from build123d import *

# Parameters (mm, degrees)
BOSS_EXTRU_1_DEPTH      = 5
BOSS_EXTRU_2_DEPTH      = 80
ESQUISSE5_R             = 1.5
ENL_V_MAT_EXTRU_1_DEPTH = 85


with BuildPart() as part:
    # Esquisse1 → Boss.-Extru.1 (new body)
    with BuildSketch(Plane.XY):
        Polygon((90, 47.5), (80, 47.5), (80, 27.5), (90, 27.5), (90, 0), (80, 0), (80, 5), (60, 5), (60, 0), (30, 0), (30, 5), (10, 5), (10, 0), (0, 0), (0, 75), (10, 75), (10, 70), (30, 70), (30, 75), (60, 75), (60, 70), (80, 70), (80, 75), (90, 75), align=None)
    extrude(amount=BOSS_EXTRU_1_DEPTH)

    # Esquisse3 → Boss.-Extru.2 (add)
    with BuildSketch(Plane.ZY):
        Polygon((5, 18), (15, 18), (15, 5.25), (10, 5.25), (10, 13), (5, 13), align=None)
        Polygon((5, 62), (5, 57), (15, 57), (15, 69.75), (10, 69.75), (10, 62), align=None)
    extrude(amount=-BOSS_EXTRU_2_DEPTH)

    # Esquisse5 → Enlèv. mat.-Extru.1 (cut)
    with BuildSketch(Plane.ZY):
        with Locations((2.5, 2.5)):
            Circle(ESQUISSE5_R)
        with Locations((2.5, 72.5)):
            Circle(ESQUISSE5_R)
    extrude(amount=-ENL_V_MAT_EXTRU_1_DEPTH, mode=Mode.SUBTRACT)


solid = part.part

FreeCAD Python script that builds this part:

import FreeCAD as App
import Part
import Sketcher

V = App.Vector

doc = App.newDocument("Part")
body = doc.addObject("PartDesign::Body", "Body")

sketch1 = body.newObject("Sketcher::SketchObject", "Sketch")
sketch1.AttachmentSupport = (doc.getObject("XY_Plane"), [""])
sketch1.MapMode = "FlatFace"
sketch1.addGeometry(Part.LineSegment(V(80, 48, 0), V(90, 48, 0)), False)
sketch1.addGeometry(Part.LineSegment(V(90, 48, 0), V(90, 75, 0)), False)
sketch1.addGeometry(Part.LineSegment(V(90, 75, 0), V(80, 75, 0)), False)
sketch1.addGeometry(Part.LineSegment(V(80, 75, 0), V(80, 70, 0)), False)
sketch1.addGeometry(Part.LineSegment(V(80, 70, 0), V(60, 70, 0)), False)
sketch1.addGeometry(Part.LineSegment(V(60, 70, 0), V(60, 75, 0)), False)
sketch1.addGeometry(Part.LineSegment(V(60, 75, 0), V(30, 75, 0)), False)
sketch1.addGeometry(Part.LineSegment(V(30, 75, 0), V(30, 70, 0)), False)
sketch1.addGeometry(Part.LineSegment(V(30, 70, 0), V(10, 70, 0)), False)
sketch1.addGeometry(Part.LineSegment(V(10, 70, 0), V(10, 75, 0)), False)
sketch1.addGeometry(Part.LineSegment(V(10, 75, 0), V(0, 75, 0)), False)
sketch1.addGeometry(Part.LineSegment(V(0, 75, 0), V(0, 0, 0)), False)
sketch1.addGeometry(Part.LineSegment(V(0, 0, 0), V(10, 0, 0)), False)
sketch1.addGeometry(Part.LineSegment(V(10, 0, 0), V(10, 5, 0)), False)
sketch1.addGeometry(Part.LineSegment(V(10, 5, 0), V(30, 5, 0)), False)
sketch1.addGeometry(Part.LineSegment(V(30, 5, 0), V(30, 0, 0)), False)
sketch1.addGeometry(Part.LineSegment(V(30, 0, 0), V(60, 0, 0)), False)
sketch1.addGeometry(Part.LineSegment(V(60, 0, 0), V(60, 5, 0)), False)
sketch1.addGeometry(Part.LineSegment(V(60, 5, 0), V(80, 5, 0)), False)
sketch1.addGeometry(Part.LineSegment(V(80, 5, 0), V(80, 0, 0)), False)
sketch1.addGeometry(Part.LineSegment(V(80, 0, 0), V(90, 0, 0)), False)
sketch1.addGeometry(Part.LineSegment(V(90, 0, 0), V(90, 28, 0)), False)
sketch1.addGeometry(Part.LineSegment(V(90, 28, 0), V(80, 28, 0)), False)
sketch1.addGeometry(Part.LineSegment(V(80, 28, 0), V(80, 48, 0)), False)
sketch1.addConstraint(Sketcher.Constraint("Coincident", 0, 2, 1, 1))
sketch1.addConstraint(Sketcher.Constraint("Coincident", 1, 2, 2, 1))
sketch1.addConstraint(Sketcher.Constraint("Coincident", 2, 2, 3, 1))
sketch1.addConstraint(Sketcher.Constraint("Coincident", 3, 2, 4, 1))
sketch1.addConstraint(Sketcher.Constraint("Coincident", 4, 2, 5, 1))
sketch1.addConstraint(Sketcher.Constraint("Coincident", 5, 2, 6, 1))
sketch1.addConstraint(Sketcher.Constraint("Coincident", 6, 2, 7, 1))
sketch1.addConstraint(Sketcher.Constraint("Coincident", 7, 2, 8, 1))
sketch1.addConstraint(Sketcher.Constraint("Coincident", 8, 2, 9, 1))
sketch1.addConstraint(Sketcher.Constraint("Coincident", 9, 2, 10, 1))
sketch1.addConstraint(Sketcher.Constraint("Coincident", 10, 2, 11, 1))
sketch1.addConstraint(Sketcher.Constraint("Coincident", 11, 2, 12, 1))
sketch1.addConstraint(Sketcher.Constraint("Coincident", 12, 2, 13, 1))
sketch1.addConstraint(Sketcher.Constraint("Coincident", 13, 2, 14, 1))
sketch1.addConstraint(Sketcher.Constraint("Coincident", 14, 2, 15, 1))
sketch1.addConstraint(Sketcher.Constraint("Coincident", 15, 2, 16, 1))
sketch1.addConstraint(Sketcher.Constraint("Coincident", 16, 2, 17, 1))
sketch1.addConstraint(Sketcher.Constraint("Coincident", 17, 2, 18, 1))
sketch1.addConstraint(Sketcher.Constraint("Coincident", 18, 2, 19, 1))
sketch1.addConstraint(Sketcher.Constraint("Coincident", 19, 2, 20, 1))
sketch1.addConstraint(Sketcher.Constraint("Coincident", 20, 2, 21, 1))
sketch1.addConstraint(Sketcher.Constraint("Coincident", 21, 2, 22, 1))
sketch1.addConstraint(Sketcher.Constraint("Coincident", 22, 2, 23, 1))
sketch1.addConstraint(Sketcher.Constraint("Coincident", 23, 2, 0, 1))
sketch1.addConstraint(Sketcher.Constraint("Horizontal", 0))
sketch1.addConstraint(Sketcher.Constraint("Vertical", 1))
sketch1.addConstraint(Sketcher.Constraint("Horizontal", 2))
sketch1.addConstraint(Sketcher.Constraint("Vertical", 3))
sketch1.addConstraint(Sketcher.Constraint("Horizontal", 4))
sketch1.addConstraint(Sketcher.Constraint("Vertical", 5))
sketch1.addConstraint(Sketcher.Constraint("Horizontal", 6))
sketch1.addConstraint(Sketcher.Constraint("Vertical", 7))
sketch1.addConstraint(Sketcher.Constraint("Horizontal", 8))
sketch1.addConstraint(Sketcher.Constraint("Vertical", 9))
sketch1.addConstraint(Sketcher.Constraint("Horizontal", 10))
sketch1.addConstraint(Sketcher.Constraint("Vertical", 11))
sketch1.addConstraint(Sketcher.Constraint("Horizontal", 12))
sketch1.addConstraint(Sketcher.Constraint("Vertical", 13))
sketch1.addConstraint(Sketcher.Constraint("Horizontal", 14))
sketch1.addConstraint(Sketcher.Constraint("Vertical", 15))
sketch1.addConstraint(Sketcher.Constraint("Horizontal", 16))
sketch1.addConstraint(Sketcher.Constraint("Vertical", 17))
sketch1.addConstraint(Sketcher.Constraint("Horizontal", 18))
sketch1.addConstraint(Sketcher.Constraint("Vertical", 19))
sketch1.addConstraint(Sketcher.Constraint("Horizontal", 20))
sketch1.addConstraint(Sketcher.Constraint("Vertical", 21))
sketch1.addConstraint(Sketcher.Constraint("Horizontal", 22))
sketch1.addConstraint(Sketcher.Constraint("Vertical", 23))
sketch1.addConstraint(Sketcher.Constraint("Coincident", 11, 2, -1, 1))
sketch1.addConstraint(Sketcher.Constraint("PointOnObject", 15, 2, -1))
sketch1.addConstraint(Sketcher.Constraint("PointOnObject", 19, 2, -1))
sketch1.addConstraint(Sketcher.Constraint("Horizontal", 2, 2, 5, 2))
sketch1.addConstraint(Sketcher.Constraint("Horizontal", 4, 2, 7, 2))
sketch1.addConstraint(Sketcher.Constraint("Horizontal", 6, 2, 9, 2))
sketch1.addConstraint(Sketcher.Constraint("Horizontal", 14, 2, 17, 2))
sketch1.addConstraint(Sketcher.Constraint("Vertical", 9, 2, 12, 2))
sketch1.addConstraint(Sketcher.Constraint("Vertical", 7, 2, 14, 2))
sketch1.addConstraint(Sketcher.Constraint("Vertical", 5, 2, 16, 2))
sketch1.addConstraint(Sketcher.Constraint("Vertical", 3, 2, 18, 2))
sketch1.addConstraint(Sketcher.Constraint("Vertical", 1, 2, 20, 2))
sketch1.addConstraint(Sketcher.Constraint("Vertical", 19, 2, 22, 2))
sketch1.addConstraint(Sketcher.Constraint("Equal", 4, 8))
sketch1.addConstraint(Sketcher.Constraint("Equal", 2, 10))
sketch1.addConstraint(Sketcher.Constraint("Equal", 9, 13))
sketch1.addConstraint(Sketcher.Constraint("Equal", 1, 21))
sketch1.addConstraint(Sketcher.Constraint("Equal", 18, 23))
sketch1.addConstraint(Sketcher.Constraint("DistanceX", 0, 1, 0, 2, 10.0))
sketch1.addConstraint(Sketcher.Constraint("DistanceX", 4, 2, 4, 1, 20.0))
sketch1.addConstraint(Sketcher.Constraint("DistanceX", 6, 2, 6, 1, 30.0))
sketch1.addConstraint(Sketcher.Constraint("DistanceY", 3, 2, 3, 1, 5.0))
sketch1.addConstraint(Sketcher.Constraint("DistanceY", 11, 2, 11, 1, 75.0))
pad1 = body.newObject("PartDesign::Pad", "Pad")
pad1.Profile = sketch1
pad1.Length = 5

sketch2 = body.newObject("Sketcher::SketchObject", "Sketch001")
sketch2.AttachmentSupport = (doc.getObject("YZ_Plane"), [""])
sketch2.MapMode = "FlatFace"
sketch2.addGeometry(Part.LineSegment(V(18, 15, 0), V(18, 5, 0)), False)
sketch2.addGeometry(Part.LineSegment(V(18, 5, 0), V(13, 5, 0)), False)
sketch2.addGeometry(Part.LineSegment(V(13, 5, 0), V(13, 10, 0)), False)
sketch2.addGeometry(Part.LineSegment(V(13, 10, 0), V(5, 10, 0)), False)
sketch2.addGeometry(Part.LineSegment(V(5, 10, 0), V(5, 15, 0)), False)
sketch2.addGeometry(Part.LineSegment(V(5, 15, 0), V(18, 15, 0)), False)
sketch2.addGeometry(Part.LineSegment(V(62, 5, 0), V(57, 5, 0)), False)
sketch2.addGeometry(Part.LineSegment(V(57, 5, 0), V(57, 15, 0)), False)
sketch2.addGeometry(Part.LineSegment(V(57, 15, 0), V(70, 15, 0)), False)
sketch2.addGeometry(Part.LineSegment(V(70, 15, 0), V(70, 10, 0)), False)
sketch2.addGeometry(Part.LineSegment(V(70, 10, 0), V(62, 10, 0)), False)
sketch2.addGeometry(Part.LineSegment(V(62, 10, 0), V(62, 5, 0)), False)
sketch2.addConstraint(Sketcher.Constraint("Coincident", 0, 2, 1, 1))
sketch2.addConstraint(Sketcher.Constraint("Coincident", 1, 2, 2, 1))
sketch2.addConstraint(Sketcher.Constraint("Coincident", 2, 2, 3, 1))
sketch2.addConstraint(Sketcher.Constraint("Coincident", 3, 2, 4, 1))
sketch2.addConstraint(Sketcher.Constraint("Coincident", 4, 2, 5, 1))
sketch2.addConstraint(Sketcher.Constraint("Coincident", 5, 2, 0, 1))
sketch2.addConstraint(Sketcher.Constraint("Coincident", 6, 2, 7, 1))
sketch2.addConstraint(Sketcher.Constraint("Coincident", 7, 2, 8, 1))
sketch2.addConstraint(Sketcher.Constraint("Coincident", 8, 2, 9, 1))
sketch2.addConstraint(Sketcher.Constraint("Coincident", 9, 2, 10, 1))
sketch2.addConstraint(Sketcher.Constraint("Coincident", 10, 2, 11, 1))
sketch2.addConstraint(Sketcher.Constraint("Coincident", 11, 2, 6, 1))
sketch2.addConstraint(Sketcher.Constraint("Vertical", 0))
sketch2.addConstraint(Sketcher.Constraint("Horizontal", 1))
sketch2.addConstraint(Sketcher.Constraint("Vertical", 2))
sketch2.addConstraint(Sketcher.Constraint("Horizontal", 3))
sketch2.addConstraint(Sketcher.Constraint("Vertical", 4))
sketch2.addConstraint(Sketcher.Constraint("Horizontal", 5))
sketch2.addConstraint(Sketcher.Constraint("Horizontal", 6))
sketch2.addConstraint(Sketcher.Constraint("Vertical", 7))
sketch2.addConstraint(Sketcher.Constraint("Horizontal", 8))
sketch2.addConstraint(Sketcher.Constraint("Vertical", 9))
sketch2.addConstraint(Sketcher.Constraint("Horizontal", 10))
sketch2.addConstraint(Sketcher.Constraint("Vertical", 11))
sketch2.addConstraint(Sketcher.Constraint("Horizontal", 1, 2, 6, 2))
sketch2.addConstraint(Sketcher.Constraint("Horizontal", 5, 2, 7, 2))
sketch2.addConstraint(Sketcher.Constraint("Horizontal", 3, 2, 9, 2))
sketch2.addConstraint(Sketcher.Constraint("Equal", 1, 6))
sketch2.addConstraint(Sketcher.Constraint("Equal", 5, 8))
sketch2.addConstraint(Sketcher.Constraint("Equal", 6, 2))
sketch2.addConstraint(Sketcher.Constraint("Equal", 2, 4))
sketch2.addConstraint(Sketcher.Constraint("DistanceX", 1, 2, 1, 1, 5.0))
sketch2.addConstraint(Sketcher.Constraint("DistanceX", -1, 1, 0, 2, 18.0))
sketch2.addConstraint(Sketcher.Constraint("DistanceY", -1, 1, 0, 2, 5.0))
sketch2.addConstraint(Sketcher.Constraint("DistanceX", -1, 1, 6, 2, 57.0))
sketch2.addConstraint(Sketcher.Constraint("DistanceX", 3, 2, 3, 1, 7.75))
pad2 = body.newObject("PartDesign::Pad", "Pad001")
pad2.Profile = sketch2
pad2.Length = 80

sketch3 = body.newObject("Sketcher::SketchObject", "Sketch002")
sketch3.AttachmentSupport = (doc.getObject("YZ_Plane"), [""])
sketch3.MapMode = "FlatFace"
sketch3.addGeometry(Part.Circle(V(2.5, 2.5, 0), V(0, 0, 1), 1.5), False)
sketch3.addGeometry(Part.Circle(V(72.5, 2.5, 0), V(0, 0, 1), 1.5), False)
sketch3.addConstraint(Sketcher.Constraint("Equal", 0, 1))
sketch3.addConstraint(Sketcher.Constraint("Horizontal", 0, 3, 1, 3))
sketch3.addConstraint(Sketcher.Constraint("Diameter", 0, 3.0))
sketch3.addConstraint(Sketcher.Constraint("DistanceX", 0, 3, 1, 3, 70.0))
sketch3.addConstraint(Sketcher.Constraint("DistanceX", -1, 1, 0, 3, 2.5))
sketch3.addConstraint(Sketcher.Constraint("DistanceY", -1, 1, 0, 3, 2.5))
pocket1 = body.newObject("PartDesign::Pocket", "Pocket")
pocket1.Profile = sketch3
pocket1.Length = 85
pocket1.Reversed = True

doc.recompute()
